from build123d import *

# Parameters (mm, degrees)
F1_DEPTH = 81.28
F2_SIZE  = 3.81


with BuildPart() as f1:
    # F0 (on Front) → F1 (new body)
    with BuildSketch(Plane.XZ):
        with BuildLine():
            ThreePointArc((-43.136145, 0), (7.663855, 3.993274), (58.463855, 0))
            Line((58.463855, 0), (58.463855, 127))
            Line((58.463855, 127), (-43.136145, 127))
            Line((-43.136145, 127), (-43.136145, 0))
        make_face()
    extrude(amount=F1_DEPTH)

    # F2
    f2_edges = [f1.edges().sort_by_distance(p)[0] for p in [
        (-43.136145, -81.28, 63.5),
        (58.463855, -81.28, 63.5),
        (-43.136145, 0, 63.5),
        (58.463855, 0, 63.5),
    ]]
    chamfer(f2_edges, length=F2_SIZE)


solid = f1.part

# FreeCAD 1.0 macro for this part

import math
import FreeCAD as App
import Part
import Sketcher

V = App.Vector
Q = App.Units.Quantity


def edges_at(feature, points):
    """Names of the edges that pass closest to the given points."""
    edges = feature.Shape.Edges
    near = lambda p: min(range(len(edges)), key=lambda i: edges[i].distToShape(Part.Vertex(*p))[0])
    return sorted({f"Edge{near(p) + 1}" for p in points})

doc = App.newDocument("Part")
body = doc.addObject("PartDesign::Body", "Body")

sketch1 = body.newObject("Sketcher::SketchObject", "Sketch")
sketch1.AttachmentSupport = (doc.getObject("XZ_Plane"), [""])
sketch1.MapMode = "FlatFace"
sketch1.addGeometry(Part.ArcOfCircle(Part.Circle(V(8, -321, 0), V(0, 0, 1), 325), math.radians(81.01), math.radians(98.99)), False)
sketch1.addGeometry(Part.LineSegment(V(58, 0, 0), V(58, 127, 0)), False)
sketch1.addGeometry(Part.LineSegment(V(58, 127, 0), V(-43, 127, 0)), False)
sketch1.addGeometry(Part.LineSegment(V(-43, 127, 0), V(-43, 0, 0)), False)
sketch1.addConstraint(Sketcher.Constraint("Coincident", 0, 1, 1, 1))
sketch1.addConstraint(Sketcher.Constraint("Coincident", 1, 2, 2, 1))
sketch1.addConstraint(Sketcher.Constraint("Coincident", 2, 2, 3, 1))
sketch1.addConstraint(Sketcher.Constraint("Coincident", 3, 2, 0, 2))
sketch1.addConstraint(Sketcher.Constraint("Vertical", 1))
sketch1.addConstraint(Sketcher.Constraint("Horizontal", 2))
sketch1.addConstraint(Sketcher.Constraint("Vertical", 3))
sketch1.addConstraint(Sketcher.Constraint("PointOnObject", 0, 1, -1))
sketch1.addConstraint(Sketcher.Constraint("PointOnObject", 3, 2, -1))
sketch1.addConstraint(Sketcher.Constraint("DistanceX", 2, 2, 2, 1, Q("4 in")))
sketch1.addConstraint(Sketcher.Constraint("DistanceY", 1, 1, 1, 2, Q("5 in")))
sketch1.addConstraint(Sketcher.Constraint("Radius", 0, Q("325.119969 mm")))
sketch1.addConstraint(Sketcher.Constraint("DistanceX", -1, 1, 0, 3, Q("7.663855 mm")))
pad1 = body.newObject("PartDesign::Pad", "Pad")
pad1.Profile = sketch1
pad1.Length = Q("3.2 in")
doc.recompute()

chamfer = body.newObject("PartDesign::Chamfer", "Chamfer")
chamfer.Base = (pad1, edges_at(pad1, [
    (-43.136, -81.28, 63.5),
    (58.464, -81.28, 63.5),
    (-43.136, 0, 63.5),
    (58.464, 0, 63.5),
]))
chamfer.Size = Q("0.15 in")

doc.recompute()
